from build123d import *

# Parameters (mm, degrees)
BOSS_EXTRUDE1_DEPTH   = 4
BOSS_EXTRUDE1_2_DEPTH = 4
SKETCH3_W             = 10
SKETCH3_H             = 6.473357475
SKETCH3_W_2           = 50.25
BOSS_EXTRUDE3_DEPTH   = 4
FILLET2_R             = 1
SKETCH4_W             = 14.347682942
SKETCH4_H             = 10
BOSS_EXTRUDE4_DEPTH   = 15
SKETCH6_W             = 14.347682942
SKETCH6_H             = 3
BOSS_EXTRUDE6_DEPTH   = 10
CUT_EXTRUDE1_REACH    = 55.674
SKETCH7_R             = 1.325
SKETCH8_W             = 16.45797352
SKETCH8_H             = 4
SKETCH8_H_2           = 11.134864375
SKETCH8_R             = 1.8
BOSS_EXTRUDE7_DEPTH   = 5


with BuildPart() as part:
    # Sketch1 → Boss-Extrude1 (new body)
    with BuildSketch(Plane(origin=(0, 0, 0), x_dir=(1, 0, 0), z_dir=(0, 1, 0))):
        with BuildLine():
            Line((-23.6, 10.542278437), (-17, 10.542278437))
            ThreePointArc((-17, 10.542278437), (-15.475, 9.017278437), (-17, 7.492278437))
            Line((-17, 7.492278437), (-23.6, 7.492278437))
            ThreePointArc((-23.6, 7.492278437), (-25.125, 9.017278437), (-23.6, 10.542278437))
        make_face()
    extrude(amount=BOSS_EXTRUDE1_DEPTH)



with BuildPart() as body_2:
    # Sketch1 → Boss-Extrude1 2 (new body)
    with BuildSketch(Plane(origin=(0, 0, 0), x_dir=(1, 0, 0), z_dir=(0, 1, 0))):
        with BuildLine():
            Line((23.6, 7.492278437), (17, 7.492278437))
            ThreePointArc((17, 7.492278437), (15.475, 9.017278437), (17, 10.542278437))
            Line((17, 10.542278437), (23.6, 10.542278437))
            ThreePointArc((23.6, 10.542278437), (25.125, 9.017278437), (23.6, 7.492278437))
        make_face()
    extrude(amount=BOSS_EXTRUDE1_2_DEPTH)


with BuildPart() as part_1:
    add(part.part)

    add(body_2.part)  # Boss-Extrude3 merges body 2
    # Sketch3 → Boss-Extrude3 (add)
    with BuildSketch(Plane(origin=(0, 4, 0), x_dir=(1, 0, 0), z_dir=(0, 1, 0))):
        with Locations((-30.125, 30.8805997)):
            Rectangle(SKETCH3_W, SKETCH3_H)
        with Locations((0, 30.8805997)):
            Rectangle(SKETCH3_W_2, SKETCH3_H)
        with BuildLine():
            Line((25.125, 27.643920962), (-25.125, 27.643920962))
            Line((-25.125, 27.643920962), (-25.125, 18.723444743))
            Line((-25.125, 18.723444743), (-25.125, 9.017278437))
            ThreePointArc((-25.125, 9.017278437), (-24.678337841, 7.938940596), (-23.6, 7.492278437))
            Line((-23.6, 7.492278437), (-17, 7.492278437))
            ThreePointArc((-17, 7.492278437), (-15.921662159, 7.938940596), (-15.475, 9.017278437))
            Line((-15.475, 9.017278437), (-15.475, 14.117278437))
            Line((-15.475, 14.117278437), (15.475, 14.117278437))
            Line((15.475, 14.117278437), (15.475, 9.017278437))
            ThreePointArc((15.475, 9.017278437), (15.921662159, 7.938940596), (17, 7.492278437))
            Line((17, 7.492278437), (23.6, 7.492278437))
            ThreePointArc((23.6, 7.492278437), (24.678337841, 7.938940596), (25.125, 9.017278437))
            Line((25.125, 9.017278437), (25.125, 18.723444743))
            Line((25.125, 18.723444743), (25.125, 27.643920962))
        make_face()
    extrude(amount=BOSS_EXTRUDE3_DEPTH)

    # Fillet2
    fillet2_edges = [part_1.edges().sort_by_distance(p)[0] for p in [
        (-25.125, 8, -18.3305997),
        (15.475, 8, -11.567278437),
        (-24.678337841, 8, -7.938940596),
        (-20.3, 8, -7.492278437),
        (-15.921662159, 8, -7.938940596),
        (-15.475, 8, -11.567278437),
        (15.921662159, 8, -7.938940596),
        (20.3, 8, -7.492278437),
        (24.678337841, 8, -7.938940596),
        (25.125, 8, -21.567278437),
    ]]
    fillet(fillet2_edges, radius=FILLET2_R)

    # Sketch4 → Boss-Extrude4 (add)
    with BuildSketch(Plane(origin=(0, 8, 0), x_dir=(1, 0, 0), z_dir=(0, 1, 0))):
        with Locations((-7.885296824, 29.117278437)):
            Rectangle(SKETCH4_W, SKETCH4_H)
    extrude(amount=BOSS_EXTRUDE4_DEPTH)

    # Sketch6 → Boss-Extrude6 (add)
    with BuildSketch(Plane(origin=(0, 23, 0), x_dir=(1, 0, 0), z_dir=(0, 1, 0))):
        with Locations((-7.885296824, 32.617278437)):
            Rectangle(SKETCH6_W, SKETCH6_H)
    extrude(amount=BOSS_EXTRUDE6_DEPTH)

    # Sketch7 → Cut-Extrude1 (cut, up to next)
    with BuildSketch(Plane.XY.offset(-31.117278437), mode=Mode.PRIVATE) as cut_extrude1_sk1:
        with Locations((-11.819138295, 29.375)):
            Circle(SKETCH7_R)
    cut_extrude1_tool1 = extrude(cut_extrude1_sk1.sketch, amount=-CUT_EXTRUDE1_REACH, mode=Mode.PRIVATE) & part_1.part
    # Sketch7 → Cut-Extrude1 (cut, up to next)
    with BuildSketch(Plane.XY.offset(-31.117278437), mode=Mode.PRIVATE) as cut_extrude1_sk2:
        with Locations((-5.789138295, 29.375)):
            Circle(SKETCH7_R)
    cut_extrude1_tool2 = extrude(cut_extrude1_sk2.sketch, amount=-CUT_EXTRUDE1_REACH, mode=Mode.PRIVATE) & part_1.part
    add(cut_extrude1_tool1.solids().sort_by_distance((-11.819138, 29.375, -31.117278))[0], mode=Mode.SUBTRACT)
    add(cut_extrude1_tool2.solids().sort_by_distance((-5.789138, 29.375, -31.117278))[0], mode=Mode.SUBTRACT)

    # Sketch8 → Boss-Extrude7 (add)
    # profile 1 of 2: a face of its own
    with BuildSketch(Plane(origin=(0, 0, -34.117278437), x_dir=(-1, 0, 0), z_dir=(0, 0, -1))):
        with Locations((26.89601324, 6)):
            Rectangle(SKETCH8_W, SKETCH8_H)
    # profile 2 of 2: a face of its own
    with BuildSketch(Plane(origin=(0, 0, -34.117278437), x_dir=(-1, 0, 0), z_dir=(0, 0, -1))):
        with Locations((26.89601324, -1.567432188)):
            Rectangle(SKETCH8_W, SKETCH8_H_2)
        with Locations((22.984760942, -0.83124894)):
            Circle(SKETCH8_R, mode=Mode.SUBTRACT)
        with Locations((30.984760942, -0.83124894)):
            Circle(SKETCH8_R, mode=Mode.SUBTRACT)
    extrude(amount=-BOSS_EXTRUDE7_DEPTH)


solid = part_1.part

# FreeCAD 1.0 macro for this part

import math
import FreeCAD as App
import Part
import Sketcher
from FreeCAD import Vector


def edges_at(feature, points):
    """Names of the edges that pass closest to the given points."""
    edges = feature.Shape.Edges
    near = lambda p: min(range(len(edges)), key=lambda i: edges[i].distToShape(Part.Vertex(*p))[0])
    return sorted({f"Edge{near(p) + 1}" for p in points})


def add_polygon(sketch, points):
    """Adds a closed chain of lines whose ends are joined by coincident constraints."""
    first, n = sketch.GeometryCount, len(points)
    for a, b in zip(points, points[1:] + points[:1]):
        sketch.addGeometry(Part.LineSegment(App.Vector(*a, 0), App.Vector(*b, 0)), False)
    for i in range(n):
        sketch.addConstraint(Sketcher.Constraint("Coincident", first + i, 2, first + (i + 1) % n, 1))

doc = App.newDocument("Part")
body = doc.addObject("PartDesign::Body", "Body")

sketch1 = body.newObject("Sketcher::SketchObject", "Sketch")
sketch1.AttachmentSupport = (doc.getObject("XZ_Plane"), [""])
sketch1.MapMode = "FlatFace"
sketch1.addGeometry([
    Part.LineSegment(Vector(-17, -10.542278, 0), Vector(-23.6, -10.542278, 0)),
    Part.ArcOfCircle(Part.Circle(Vector(-23.6, -9.017278, 0), Vector(0, 0, 1), 1.525), math.radians(90), math.radians(270)),
    Part.LineSegment(Vector(-23.6, -7.492278, 0), Vector(-17, -7.492278, 0)),
    Part.ArcOfCircle(Part.Circle(Vector(-17, -9.017278, 0), Vector(0, 0, 1), 1.525), math.radians(-90), math.radians(90)),
], False)
sketch1.addConstraint([
    Sketcher.Constraint("Tangent", 0, 2, 1, 2),
    Sketcher.Constraint("Tangent", 1, 1, 2, 1),
    Sketcher.Constraint("Tangent", 2, 2, 3, 2),
    Sketcher.Constraint("Tangent", 3, 1, 0, 1),
    Sketcher.Constraint("Horizontal", 0),
    Sketcher.Constraint("Horizontal", 2),
    Sketcher.Constraint("DistanceX", 0, 2, 0, 1, 6.6),
    Sketcher.Constraint("DistanceX", 3, 3, -1, 1, 17.0),
    Sketcher.Constraint("Radius", 1, 1.525),
    Sketcher.Constraint("DistanceY", 1, 3, -1, 1, 9.017278),
])
pad1 = body.newObject("PartDesign::Pad", "Pad")
pad1.Profile = sketch1
pad1.Length = 4
pad1.Reversed = True
body2 = doc.addObject("PartDesign::Body", "Body001")

sketch2 = body2.newObject("Sketcher::SketchObject", "Sketch001")
sketch2.AttachmentSupport = (doc.getObject("XZ_Plane001"), [""])
sketch2.MapMode = "FlatFace"
sketch2.addGeometry([
    Part.LineSegment(Vector(17, -7.492278, 0), Vector(23.6, -7.492278, 0)),
    Part.ArcOfCircle(Part.Circle(Vector(23.6, -9.017278, 0), Vector(0, 0, 1), 1.525), math.radians(-90), math.radians(90)),
    Part.LineSegment(Vector(23.6, -10.542278, 0), Vector(17, -10.542278, 0)),
    Part.ArcOfCircle(Part.Circle(Vector(17, -9.017278, 0), Vector(0, 0, 1), 1.525), math.radians(90), math.radians(270)),
], False)
sketch2.addConstraint([
    Sketcher.Constraint("Tangent", 0, 2, 1, 2),
    Sketcher.Constraint("Tangent", 1, 1, 2, 1),
    Sketcher.Constraint("Tangent", 2, 2, 3, 2),
    Sketcher.Constraint("Tangent", 3, 1, 0, 1),
    Sketcher.Constraint("Horizontal", 0),
    Sketcher.Constraint("Horizontal", 2),
    Sketcher.Constraint("DistanceX", 0, 1, 0, 2, 6.6),
    Sketcher.Constraint("DistanceX", -1, 1, 3, 3, 17.0),
    Sketcher.Constraint("Radius", 1, 1.525),
    Sketcher.Constraint("DistanceY", 1, 3, -1, 1, 9.017278),
])
pad2 = body2.newObject("PartDesign::Pad", "Pad001")
pad2.Profile = sketch2
pad2.Length = 4
pad2.Reversed = True
body.AllowCompound = True
doc.recompute()

boolean = body.newObject("PartDesign::Boolean", "Boolean")
boolean.Type = "Fuse"
boolean.addObjects([body2])

sketch3 = body.newObject("Sketcher::SketchObject", "Sketch002")
sketch3.AttachmentSupport = (doc.getObject("XZ_Plane"), [""])
sketch3.MapMode = "FlatFace"
sketch3.AttachmentOffset = App.Placement(Vector(0, 0, -4), App.Rotation())
sketch3.addGeometry([
    Part.LineSegment(Vector(-35.125, -34.117278, 0), Vector(-35.125, -27.643921, 0)),
    Part.LineSegment(Vector(-35.125, -27.643921, 0), Vector(-25.125, -27.643921, 0)),
    Part.LineSegment(Vector(-25.125, -27.643921, 0), Vector(-25.125, -9.017278, 0)),
    Part.ArcOfCircle(Part.Circle(Vector(-23.6, -9.017278, 0), Vector(0, 0, 1), 1.525), math.radians(90), math.radians(180)),
    Part.LineSegment(Vector(-23.6, -7.492278, 0), Vector(-17, -7.492278, 0)),
    Part.ArcOfCircle(Part.Circle(Vector(-17, -9.017278, 0), Vector(0, 0, 1), 1.525), math.radians(0), math.radians(90)),
    Part.LineSegment(Vector(-15.475, -9.017278, 0), Vector(-15.475, -14.117278, 0)),
    Part.LineSegment(Vector(-15.475, -14.117278, 0), Vector(15.475, -14.117278, 0)),
    Part.LineSegment(Vector(15.475, -14.117278, 0), Vector(15.475, -9.017278, 0)),
    Part.ArcOfCircle(Part.Circle(Vector(17, -9.017278, 0), Vector(0, 0, 1), 1.525), math.radians(90), math.radians(180)),
    Part.LineSegment(Vector(17, -7.492278, 0), Vector(23.6, -7.492278, 0)),
    Part.ArcOfCircle(Part.Circle(Vector(23.6, -9.017278, 0), Vector(0, 0, 1), 1.525), math.radians(0), math.radians(90)),
    Part.LineSegment(Vector(25.125, -9.017278, 0), Vector(25.125, -34.117278, 0)),
    Part.LineSegment(Vector(25.125, -34.117278, 0), Vector(-35.125, -34.117278, 0)),
], False)
sketch3.addConstraint([
    Sketcher.Constraint("Coincident", 0, 2, 1, 1),
    Sketcher.Constraint("Coincident", 1, 2, 2, 1),
    Sketcher.Constraint("Tangent", 2, 2, 3, 2),
    Sketcher.Constraint("Tangent", 3, 1, 4, 1),
    Sketcher.Constraint("Tangent", 4, 2, 5, 2),
    Sketcher.Constraint("Tangent", 5, 1, 6, 1),
    Sketcher.Constraint("Coincident", 6, 2, 7, 1),
    Sketcher.Constraint("Coincident", 7, 2, 8, 1),
    Sketcher.Constraint("Tangent", 8, 2, 9, 2),
    Sketcher.Constraint("Tangent", 9, 1, 10, 1),
    Sketcher.Constraint("Tangent", 10, 2, 11, 2),
    Sketcher.Constraint("Tangent", 11, 1, 12, 1),
    Sketcher.Constraint("Coincident", 12, 2, 13, 1),
    Sketcher.Constraint("Coincident", 13, 2, 0, 1),
    Sketcher.Constraint("Vertical", 0),
    Sketcher.Constraint("Horizontal", 1),
    Sketcher.Constraint("Vertical", 2),
    Sketcher.Constraint("Horizontal", 4),
    Sketcher.Constraint("Vertical", 6),
    Sketcher.Constraint("Horizontal", 7),
    Sketcher.Constraint("Vertical", 8),
    Sketcher.Constraint("Horizontal", 10),
    Sketcher.Constraint("Vertical", 12),
    Sketcher.Constraint("Horizontal", 13),
    Sketcher.Constraint("Equal", 3, 5),
    Sketcher.Constraint("Equal", 5, 9),
    Sketcher.Constraint("Equal", 9, 11),
    Sketcher.Constraint("Symmetric", 5, 3, 9, 3, -2),
    Sketcher.Constraint("Equal", 4, 10),
    Sketcher.Constraint("DistanceX", 1, 1, 1, 2, 10.0),
    Sketcher.Constraint("DistanceX", 4, 1, 4, 2, 6.6),
    Sketcher.Constraint("DistanceY", 6, 2, 6, 1, 5.1),
    Sketcher.Constraint("DistanceY", 12, 2, 12, 1, 25.1),
    Sketcher.Constraint("DistanceX", 5, 3, -1, 1, 17.0),
    Sketcher.Constraint("Radius", 3, 1.525),
    Sketcher.Constraint("DistanceY", 0, 1, 0, 2, 6.473357),
    Sketcher.Constraint("DistanceY", 3, 3, -1, 1, 9.017278),
])
pad3 = body.newObject("PartDesign::Pad", "Pad002")
pad3.Profile = sketch3
pad3.Length = 4
pad3.Reversed = True
doc.recompute()

fillet = body.newObject("PartDesign::Fillet", "Fillet")
fillet.Base = (pad3, edges_at(pad3, [
    (-25.125, 8, -18.331),
    (15.475, 8, -11.567),
    (-24.678, 8, -7.939),
    (-20.3, 8, -7.492),
    (-15.922, 8, -7.939),
    (-15.475, 8, -11.567),
    (15.922, 8, -7.939),
    (20.3, 8, -7.492),
    (24.678, 8, -7.939),
    (25.125, 8, -21.567),
]))
fillet.Radius = 1

sketch4 = body.newObject("Sketcher::SketchObject", "Sketch003")
sketch4.AttachmentSupport = (doc.getObject("XZ_Plane"), [""])
sketch4.MapMode = "FlatFace"
sketch4.AttachmentOffset = App.Placement(Vector(0, 0, -8), App.Rotation())
add_polygon(sketch4, [(-15.059138, -34.117278), (-15.059138, -24.117278), (-0.711455, -24.117278), (-0.711455, -34.117278)])
sketch4.addConstraint([
    Sketcher.Constraint("Vertical", 0),
    Sketcher.Constraint("Horizontal", 1),
    Sketcher.Constraint("Vertical", 2),
    Sketcher.Constraint("Horizontal", 3),
    Sketcher.Constraint("DistanceY", 0, 1, 0, 2, 10.0),
    Sketcher.Constraint("DistanceX", 1, 1, 1, 2, 14.347683),
    Sketcher.Constraint("DistanceX", 0, 2, -1, 1, 15.059138),
    Sketcher.Constraint("DistanceY", 0, 2, -1, 1, 24.117278),
])
pad4 = body.newObject("PartDesign::Pad", "Pad003")
pad4.Profile = sketch4
pad4.Length = 15
pad4.Reversed = True

sketch5 = body.newObject("Sketcher::SketchObject", "Sketch004")
sketch5.AttachmentSupport = (doc.getObject("XZ_Plane"), [""])
sketch5.MapMode = "FlatFace"
sketch5.AttachmentOffset = App.Placement(Vector(0, 0, -23), App.Rotation())
add_polygon(sketch5, [(-15.059138, -34.117278), (-15.059138, -31.117278), (-0.711455, -31.117278), (-0.711455, -34.117278)])
sketch5.addConstraint([
    Sketcher.Constraint("Vertical", 0),
    Sketcher.Constraint("Horizontal", 1),
    Sketcher.Constraint("Vertical", 2),
    Sketcher.Constraint("Horizontal", 3),
    Sketcher.Constraint("DistanceY", 0, 1, 0, 2, 3.0),
    Sketcher.Constraint("DistanceX", 1, 1, 1, 2, 14.347683),
    Sketcher.Constraint("DistanceX", 0, 2, -1, 1, 15.059138),
    Sketcher.Constraint("DistanceY", 0, 2, -1, 1, 31.117278),
])
pad5 = body.newObject("PartDesign::Pad", "Pad004")
pad5.Profile = sketch5
pad5.Length = 10
pad5.Reversed = True

sketch6 = body.newObject("Sketcher::SketchObject", "Sketch005")
sketch6.AttachmentSupport = (doc.getObject("XY_Plane"), [""])
sketch6.MapMode = "FlatFace"
sketch6.AttachmentOffset = App.Placement(Vector(0, 0, -31.117278), App.Rotation())
sketch6.addGeometry(Part.Circle(Vector(-11.819138, 29.375, 0), Vector(0, 0, 1), 1.325), False)
sketch6.addConstraint([
    Sketcher.Constraint("Diameter", 0, 2.65),
    Sketcher.Constraint("DistanceY", -1, 1, 0, 3, 29.375),
    Sketcher.Constraint("DistanceX", 0, 3, -1, 1, 11.819138),
])
pocket1 = body.newObject("PartDesign::Pocket", "Pocket")
pocket1.Profile = sketch6
pocket1.Type = "UpToFirst"

sketch7 = body.newObject("Sketcher::SketchObject", "Sketch006")
sketch7.AttachmentSupport = (doc.getObject("XY_Plane"), [""])
sketch7.MapMode = "FlatFace"
sketch7.AttachmentOffset = App.Placement(Vector(0, 0, -31.117278), App.Rotation())
sketch7.addGeometry(Part.Circle(Vector(-5.789138, 29.375, 0), Vector(0, 0, 1), 1.325), False)
sketch7.addConstraint([
    Sketcher.Constraint("Diameter", 0, 2.65),
    Sketcher.Constraint("DistanceY", -1, 1, 0, 3, 29.375),
    Sketcher.Constraint("DistanceX", 0, 3, -1, 1, 5.789138),
])
pocket2 = body.newObject("PartDesign::Pocket", "Pocket001")
pocket2.Profile = sketch7
pocket2.Type = "UpToFirst"

sketch8 = body.newObject("Sketcher::SketchObject", "Sketch007")
sketch8.AttachmentSupport = (doc.getObject("XY_Plane"), [""])
sketch8.MapMode = "FlatFace"
sketch8.AttachmentOffset = App.Placement(Vector(0, 0, -34.117278), App.Rotation())
add_polygon(sketch8, [(-18.667026, 8), (-18.667026, -7.134864), (-35.125, -7.134864), (-35.125, 8)])
sketch8.addGeometry(Part.Circle(Vector(-30.984761, -0.831249, 0), Vector(0, 0, 1), 1.8), False)
sketch8.addGeometry(Part.Circle(Vector(-22.984761, -0.831249, 0), Vector(0, 0, 1), 1.8), False)
sketch8.addConstraint([
    Sketcher.Constraint("Vertical", 0),
    Sketcher.Constraint("Horizontal", 1),
    Sketcher.Constraint("Vertical", 2),
    Sketcher.Constraint("Horizontal", 3),
    Sketcher.Constraint("Equal", 4, 5),
    Sketcher.Constraint("Horizontal", 4, 3, 5, 3),
    Sketcher.Constraint("Diameter", 4, 3.6),
    Sketcher.Constraint("DistanceY", -1, 1, 2, 2, 8.0),
    Sketcher.Constraint("DistanceX", 4, 3, 5, 3, 8.0),
    Sketcher.Constraint("DistanceX", 1, 2, -1, 1, 35.125),
    Sketcher.Constraint("DistanceX", 1, 2, 1, 1, 16.457974),
    Sketcher.Constraint("DistanceY", 0, 2, 0, 1, 15.134864),
    Sketcher.Constraint("DistanceX", 4, 3, -1, 1, 30.984761),
    Sketcher.Constraint("DistanceY", 4, 3, -1, 1, 0.831249),
])
pad6 = body.newObject("PartDesign::Pad", "Pad005")
pad6.Profile = sketch8
pad6.Length = 5

doc.recompute()
